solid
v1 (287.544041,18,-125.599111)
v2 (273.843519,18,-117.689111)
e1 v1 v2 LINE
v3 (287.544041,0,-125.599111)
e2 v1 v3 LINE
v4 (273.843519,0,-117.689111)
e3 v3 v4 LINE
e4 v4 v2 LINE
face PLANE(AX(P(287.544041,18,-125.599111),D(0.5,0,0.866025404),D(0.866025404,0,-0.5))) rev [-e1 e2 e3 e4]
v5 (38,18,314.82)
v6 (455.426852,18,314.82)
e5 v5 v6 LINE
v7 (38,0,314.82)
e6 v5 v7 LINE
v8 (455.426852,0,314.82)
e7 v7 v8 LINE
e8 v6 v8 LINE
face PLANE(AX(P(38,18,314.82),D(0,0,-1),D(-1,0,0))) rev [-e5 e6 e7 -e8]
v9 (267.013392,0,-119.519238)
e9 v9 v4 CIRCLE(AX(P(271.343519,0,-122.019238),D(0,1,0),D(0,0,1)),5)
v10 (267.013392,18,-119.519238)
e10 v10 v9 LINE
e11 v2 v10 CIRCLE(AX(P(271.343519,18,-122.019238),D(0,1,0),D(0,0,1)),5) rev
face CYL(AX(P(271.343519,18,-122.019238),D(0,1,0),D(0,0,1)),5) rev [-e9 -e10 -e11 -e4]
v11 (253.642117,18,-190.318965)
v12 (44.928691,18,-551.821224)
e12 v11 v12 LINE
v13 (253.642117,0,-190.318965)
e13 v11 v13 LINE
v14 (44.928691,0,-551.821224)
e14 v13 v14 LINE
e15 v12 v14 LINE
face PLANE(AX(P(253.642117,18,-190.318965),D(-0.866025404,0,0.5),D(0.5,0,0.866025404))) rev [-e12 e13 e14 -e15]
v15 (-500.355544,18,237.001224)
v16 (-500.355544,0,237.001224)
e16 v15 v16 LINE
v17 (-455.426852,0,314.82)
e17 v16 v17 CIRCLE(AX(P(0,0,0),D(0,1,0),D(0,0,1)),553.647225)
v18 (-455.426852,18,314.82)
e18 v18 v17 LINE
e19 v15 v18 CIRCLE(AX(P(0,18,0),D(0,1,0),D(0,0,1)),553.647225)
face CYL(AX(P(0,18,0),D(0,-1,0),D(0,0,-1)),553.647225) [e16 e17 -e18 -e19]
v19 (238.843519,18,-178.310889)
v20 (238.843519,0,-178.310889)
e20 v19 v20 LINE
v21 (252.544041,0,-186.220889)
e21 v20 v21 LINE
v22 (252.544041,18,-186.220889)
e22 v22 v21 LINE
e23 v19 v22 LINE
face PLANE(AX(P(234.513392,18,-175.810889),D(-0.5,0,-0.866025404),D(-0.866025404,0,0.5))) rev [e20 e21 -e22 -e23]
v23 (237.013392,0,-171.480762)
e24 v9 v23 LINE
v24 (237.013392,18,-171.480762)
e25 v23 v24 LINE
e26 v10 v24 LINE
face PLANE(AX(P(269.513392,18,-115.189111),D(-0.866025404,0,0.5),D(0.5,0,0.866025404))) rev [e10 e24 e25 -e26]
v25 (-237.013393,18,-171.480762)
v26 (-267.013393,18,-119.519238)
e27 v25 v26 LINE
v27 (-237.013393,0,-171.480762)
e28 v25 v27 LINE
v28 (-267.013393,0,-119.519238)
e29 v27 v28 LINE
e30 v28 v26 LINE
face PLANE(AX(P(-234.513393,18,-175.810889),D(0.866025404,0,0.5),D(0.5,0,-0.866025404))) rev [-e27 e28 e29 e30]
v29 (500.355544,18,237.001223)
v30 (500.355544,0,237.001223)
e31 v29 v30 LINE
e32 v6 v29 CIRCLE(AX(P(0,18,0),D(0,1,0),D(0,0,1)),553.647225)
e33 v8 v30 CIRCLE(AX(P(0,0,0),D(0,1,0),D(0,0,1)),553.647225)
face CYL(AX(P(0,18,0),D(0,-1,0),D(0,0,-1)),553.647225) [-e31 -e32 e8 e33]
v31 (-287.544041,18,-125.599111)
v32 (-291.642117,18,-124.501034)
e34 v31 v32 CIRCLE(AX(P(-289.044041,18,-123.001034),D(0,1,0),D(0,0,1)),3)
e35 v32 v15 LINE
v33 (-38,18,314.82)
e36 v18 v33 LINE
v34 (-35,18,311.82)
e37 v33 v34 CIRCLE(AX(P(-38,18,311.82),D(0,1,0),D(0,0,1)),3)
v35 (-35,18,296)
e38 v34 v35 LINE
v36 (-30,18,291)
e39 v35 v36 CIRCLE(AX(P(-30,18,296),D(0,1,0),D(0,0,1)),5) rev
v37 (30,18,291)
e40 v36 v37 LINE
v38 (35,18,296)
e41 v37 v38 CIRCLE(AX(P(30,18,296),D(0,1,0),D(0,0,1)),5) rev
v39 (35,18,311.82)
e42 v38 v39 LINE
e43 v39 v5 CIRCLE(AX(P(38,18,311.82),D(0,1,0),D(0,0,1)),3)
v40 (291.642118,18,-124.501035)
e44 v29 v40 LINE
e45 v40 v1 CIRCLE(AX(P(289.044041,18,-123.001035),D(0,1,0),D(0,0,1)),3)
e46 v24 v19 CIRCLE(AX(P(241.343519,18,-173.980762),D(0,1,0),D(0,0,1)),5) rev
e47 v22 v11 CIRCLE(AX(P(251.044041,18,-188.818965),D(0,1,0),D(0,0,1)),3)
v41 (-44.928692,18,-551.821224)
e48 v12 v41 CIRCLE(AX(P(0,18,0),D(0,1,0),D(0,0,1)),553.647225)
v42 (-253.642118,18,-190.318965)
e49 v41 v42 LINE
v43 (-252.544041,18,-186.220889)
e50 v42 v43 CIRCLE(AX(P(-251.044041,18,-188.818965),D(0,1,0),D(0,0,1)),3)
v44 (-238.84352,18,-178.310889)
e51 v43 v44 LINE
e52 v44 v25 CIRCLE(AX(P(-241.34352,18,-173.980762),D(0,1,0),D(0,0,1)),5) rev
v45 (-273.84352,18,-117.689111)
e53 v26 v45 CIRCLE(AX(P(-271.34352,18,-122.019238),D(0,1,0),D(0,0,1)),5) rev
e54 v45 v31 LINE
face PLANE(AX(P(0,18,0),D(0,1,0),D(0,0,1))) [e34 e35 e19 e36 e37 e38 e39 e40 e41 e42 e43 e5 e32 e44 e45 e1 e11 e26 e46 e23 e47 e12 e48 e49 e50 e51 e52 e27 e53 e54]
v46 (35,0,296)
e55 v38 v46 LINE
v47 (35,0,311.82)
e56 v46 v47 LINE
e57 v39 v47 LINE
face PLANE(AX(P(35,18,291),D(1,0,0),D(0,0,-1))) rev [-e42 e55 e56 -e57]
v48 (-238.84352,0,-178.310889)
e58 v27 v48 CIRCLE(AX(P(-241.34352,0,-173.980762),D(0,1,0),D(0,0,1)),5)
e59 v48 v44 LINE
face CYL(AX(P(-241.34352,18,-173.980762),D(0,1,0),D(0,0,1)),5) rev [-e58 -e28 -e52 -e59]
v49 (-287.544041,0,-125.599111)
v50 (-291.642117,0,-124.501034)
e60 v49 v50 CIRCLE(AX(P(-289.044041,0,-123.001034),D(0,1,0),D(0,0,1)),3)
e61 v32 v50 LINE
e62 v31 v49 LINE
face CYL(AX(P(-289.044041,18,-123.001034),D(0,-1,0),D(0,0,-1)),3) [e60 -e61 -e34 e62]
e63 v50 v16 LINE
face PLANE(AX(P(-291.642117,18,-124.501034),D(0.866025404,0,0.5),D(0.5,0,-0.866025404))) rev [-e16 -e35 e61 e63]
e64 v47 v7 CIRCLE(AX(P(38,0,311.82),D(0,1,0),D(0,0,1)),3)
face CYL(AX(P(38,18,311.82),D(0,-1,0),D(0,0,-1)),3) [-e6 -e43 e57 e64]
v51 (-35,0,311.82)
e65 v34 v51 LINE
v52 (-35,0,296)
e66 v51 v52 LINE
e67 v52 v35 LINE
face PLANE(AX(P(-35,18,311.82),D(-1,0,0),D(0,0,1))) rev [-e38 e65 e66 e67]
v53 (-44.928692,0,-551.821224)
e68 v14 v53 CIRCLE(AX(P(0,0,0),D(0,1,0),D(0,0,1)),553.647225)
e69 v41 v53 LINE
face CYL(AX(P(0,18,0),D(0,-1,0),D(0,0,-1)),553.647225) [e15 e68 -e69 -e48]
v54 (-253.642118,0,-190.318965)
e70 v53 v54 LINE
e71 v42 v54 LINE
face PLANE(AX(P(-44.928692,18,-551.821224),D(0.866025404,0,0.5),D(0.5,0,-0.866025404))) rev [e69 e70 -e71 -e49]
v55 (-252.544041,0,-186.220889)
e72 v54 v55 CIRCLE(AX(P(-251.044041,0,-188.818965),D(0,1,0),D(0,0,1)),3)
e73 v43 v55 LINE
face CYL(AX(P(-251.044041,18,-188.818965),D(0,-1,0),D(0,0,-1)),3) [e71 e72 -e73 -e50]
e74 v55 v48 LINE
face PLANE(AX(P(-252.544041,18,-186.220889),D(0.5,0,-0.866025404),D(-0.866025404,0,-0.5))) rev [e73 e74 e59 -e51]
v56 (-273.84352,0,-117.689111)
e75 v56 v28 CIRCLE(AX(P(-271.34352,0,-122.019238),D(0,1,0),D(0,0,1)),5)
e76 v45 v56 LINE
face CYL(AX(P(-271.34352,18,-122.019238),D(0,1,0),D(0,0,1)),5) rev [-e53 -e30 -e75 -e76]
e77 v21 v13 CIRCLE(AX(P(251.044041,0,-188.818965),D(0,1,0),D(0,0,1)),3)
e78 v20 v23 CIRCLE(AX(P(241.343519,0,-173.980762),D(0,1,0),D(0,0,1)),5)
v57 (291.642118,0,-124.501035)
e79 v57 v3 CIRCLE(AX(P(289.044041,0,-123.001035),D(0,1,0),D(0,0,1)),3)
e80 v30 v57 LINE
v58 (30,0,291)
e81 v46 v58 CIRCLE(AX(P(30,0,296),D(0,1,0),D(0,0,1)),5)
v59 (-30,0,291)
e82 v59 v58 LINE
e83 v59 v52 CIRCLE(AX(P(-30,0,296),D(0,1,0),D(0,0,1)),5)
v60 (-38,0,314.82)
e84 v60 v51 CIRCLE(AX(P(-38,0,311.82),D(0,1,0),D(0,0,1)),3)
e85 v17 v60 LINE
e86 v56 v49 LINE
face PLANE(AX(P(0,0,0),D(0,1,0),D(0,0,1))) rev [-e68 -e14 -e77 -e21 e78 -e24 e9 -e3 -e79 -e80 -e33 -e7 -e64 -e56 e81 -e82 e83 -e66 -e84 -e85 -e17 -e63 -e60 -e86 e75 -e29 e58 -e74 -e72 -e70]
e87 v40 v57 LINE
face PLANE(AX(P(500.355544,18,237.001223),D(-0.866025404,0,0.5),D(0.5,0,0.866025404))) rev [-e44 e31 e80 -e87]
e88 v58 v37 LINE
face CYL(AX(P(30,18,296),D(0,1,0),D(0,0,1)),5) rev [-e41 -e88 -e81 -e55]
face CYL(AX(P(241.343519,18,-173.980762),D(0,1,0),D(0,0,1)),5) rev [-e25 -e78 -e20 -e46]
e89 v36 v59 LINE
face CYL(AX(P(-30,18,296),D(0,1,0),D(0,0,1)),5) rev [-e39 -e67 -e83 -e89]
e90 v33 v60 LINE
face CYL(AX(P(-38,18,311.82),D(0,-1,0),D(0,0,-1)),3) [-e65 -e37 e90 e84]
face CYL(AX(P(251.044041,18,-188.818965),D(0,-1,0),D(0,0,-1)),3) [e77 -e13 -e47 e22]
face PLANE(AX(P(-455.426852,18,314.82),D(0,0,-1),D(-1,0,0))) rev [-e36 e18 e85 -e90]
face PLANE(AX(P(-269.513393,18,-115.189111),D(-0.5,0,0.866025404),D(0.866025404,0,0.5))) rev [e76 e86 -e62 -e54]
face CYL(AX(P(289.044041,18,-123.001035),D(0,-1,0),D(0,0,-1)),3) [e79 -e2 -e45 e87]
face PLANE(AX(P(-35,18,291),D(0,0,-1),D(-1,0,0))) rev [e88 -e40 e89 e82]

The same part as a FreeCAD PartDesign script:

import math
import FreeCAD as App
import Part
import Sketcher
Q = App.Units.Quantity


def edges_at(feature, points):
    """Names of the edges that pass closest to the given points."""
    edges = feature.Shape.Edges
    near = lambda p: min(range(len(edges)), key=lambda i: edges[i].distToShape(Part.Vertex(*p))[0])
    return sorted({f"Edge{near(p) + 1}" for p in points})

doc = App.newDocument("Part")
params = doc.addObject("Spreadsheet::Sheet", "Params")
for row, (alias, value) in enumerate([
    ("sketch1_radius", "3 mm"),
    ("sketch1_width", "70 mm"),
    ("sketch1_length", "70 mm"),
    ("sketch1_height", "20.82 mm"),
    ("sketch1_length2", "20.82 mm"),
    ("pad1_length", "18 mm"),
    ("fillet_radius", "5 mm"),
], start=1):
    params.set(f"A{row}", alias)
    params.set(f"B{row}", "=" + value)
    params.setAlias(f"B{row}", alias)

body = doc.addObject("PartDesign::Body", "Body")

# Sketch on XZ plane
sketch1 = body.newObject("Sketcher::SketchObject", "Sketch")
sketch1.AttachmentSupport = (doc.getObject("XZ_Plane"), [""])
sketch1.MapMode = "FlatFace"
sketch1.addGeometry([
    Part.LineSegment(App.Vector(-455.426852, 314.82, 0), App.Vector(-38, 314.82, 0)),  # 0
    Part.ArcOfCircle(Part.Circle(App.Vector(-38, 311.82, 0), App.Vector(0, 0, 1), 3), math.radians(0), math.radians(90)),  # 1
    Part.LineSegment(App.Vector(-35, 311.82, 0), App.Vector(-35, 291, 0)),  # 2
    Part.LineSegment(App.Vector(-35, 291, 0), App.Vector(35, 291, 0)),  # 3
    Part.LineSegment(App.Vector(35, 291, 0), App.Vector(35, 311.82, 0)),  # 4
    Part.ArcOfCircle(Part.Circle(App.Vector(38, 311.82, 0), App.Vector(0, 0, 1), 3), math.radians(90), math.radians(180)),  # 5
    Part.LineSegment(App.Vector(38, 314.82, 0), App.Vector(455.426852, 314.82, 0)),  # 6
    Part.ArcOfCircle(Part.Circle(App.Vector(0, 0, 0), App.Vector(0, 0, 1), 553.647225), math.radians(25.345306), math.radians(34.654694)),  # 7
    Part.LineSegment(App.Vector(500.355544, 237.001223, 0), App.Vector(291.642118, -124.501035, 0)),  # 8
    Part.ArcOfCircle(Part.Circle(App.Vector(289.044041, -123.001035, 0), App.Vector(0, 0, 1), 3), math.radians(-120), math.radians(-30)),  # 9
    Part.LineSegment(App.Vector(287.544041, -125.599111, 0), App.Vector(269.513392, -115.189111, 0)),  # 10
    Part.LineSegment(App.Vector(269.513392, -115.189111, 0), App.Vector(234.513392, -175.810889, 0)),  # 11
    Part.LineSegment(App.Vector(234.513392, -175.810889, 0), App.Vector(252.544041, -186.220889, 0)),  # 12
    Part.ArcOfCircle(Part.Circle(App.Vector(251.044041, -188.818965, 0), App.Vector(0, 0, 1), 3), math.radians(-30), math.radians(60)),  # 13
    Part.LineSegment(App.Vector(253.642117, -190.318965, 0), App.Vector(44.928691, -551.821224, 0)),  # 14
    Part.ArcOfCircle(Part.Circle(App.Vector(0, 0, 0), App.Vector(0, 0, 1), 553.647225), math.radians(-94.654694), math.radians(-85.345306)),  # 15
    Part.LineSegment(App.Vector(-44.928692, -551.821224, 0), App.Vector(-253.642118, -190.318965, 0)),  # 16
    Part.ArcOfCircle(Part.Circle(App.Vector(-251.044041, -188.818965, 0), App.Vector(0, 0, 1), 3), math.radians(120), math.radians(210)),  # 17
    Part.LineSegment(App.Vector(-252.544041, -186.220889, 0), App.Vector(-234.513393, -175.810889, 0)),  # 18
    Part.LineSegment(App.Vector(-234.513393, -175.810889, 0), App.Vector(-269.513393, -115.189111, 0)),  # 19
    Part.LineSegment(App.Vector(-269.513393, -115.189111, 0), App.Vector(-287.544041, -125.599111, 0)),  # 20
    Part.ArcOfCircle(Part.Circle(App.Vector(-289.044041, -123.001034, 0), App.Vector(0, 0, 1), 3), math.radians(-150), math.radians(-60)),  # 21
    Part.LineSegment(App.Vector(-291.642117, -124.501034, 0), App.Vector(-500.355544, 237.001224, 0)),  # 22
    Part.ArcOfCircle(Part.Circle(App.Vector(0, 0, 0), App.Vector(0, 0, 1), 553.647225), math.radians(145.345306), math.radians(154.654694)),  # 23
], False)
sketch1.addConstraint([
    Sketcher.Constraint("Tangent", 0, 2, 1, 2),
    Sketcher.Constraint("Tangent", 1, 1, 2, 1),
    Sketcher.Constraint("Coincident", 2, 2, 3, 1),
    Sketcher.Constraint("Coincident", 3, 2, 4, 1),
    Sketcher.Constraint("Tangent", 4, 2, 5, 2),
    Sketcher.Constraint("Tangent", 5, 1, 6, 1),
    Sketcher.Constraint("Coincident", 6, 2, 7, 2),
    Sketcher.Constraint("Coincident", 7, 1, 8, 1),
    Sketcher.Constraint("Tangent", 8, 2, 9, 2),
    Sketcher.Constraint("Tangent", 9, 1, 10, 1),
    Sketcher.Constraint("Coincident", 10, 2, 11, 1),
    Sketcher.Constraint("Coincident", 11, 2, 12, 1),
    Sketcher.Constraint("Tangent", 12, 2, 13, 2),
    Sketcher.Constraint("Tangent", 13, 1, 14, 1),
    Sketcher.Constraint("Coincident", 14, 2, 15, 2),
    Sketcher.Constraint("Coincident", 15, 1, 16, 1),
    Sketcher.Constraint("Tangent", 16, 2, 17, 2),
    Sketcher.Constraint("Tangent", 17, 1, 18, 1),
    Sketcher.Constraint("Coincident", 18, 2, 19, 1),
    Sketcher.Constraint("Coincident", 19, 2, 20, 1),
    Sketcher.Constraint("Tangent", 20, 2, 21, 2),
    Sketcher.Constraint("Tangent", 21, 1, 22, 1),
    Sketcher.Constraint("Coincident", 22, 2, 23, 2),
    Sketcher.Constraint("Coincident", 23, 1, 0, 1),
    Sketcher.Constraint("Horizontal", 0),
    Sketcher.Constraint("Vertical", 2),
    Sketcher.Constraint("Horizontal", 3),
    Sketcher.Constraint("Vertical", 4),
    Sketcher.Constraint("Horizontal", 6),
    Sketcher.Constraint("Coincident", 7, 3, -1, 1),
    Sketcher.Constraint("Coincident", 15, 3, -1, 1),
    Sketcher.Constraint("Coincident", 23, 3, -1, 1),
    Sketcher.Constraint("Equal", 1, 5),
    Sketcher.Constraint("Equal", 5, 9),
    Sketcher.Constraint("Equal", 9, 13),
    Sketcher.Constraint("Equal", 7, 15),
    Sketcher.Constraint("Equal", 13, 17),
    Sketcher.Constraint("Equal", 17, 21),
    Sketcher.Constraint("Equal", 15, 23),
    Sketcher.Constraint("Symmetric", 1, 3, 5, 3, -2),
    Sketcher.Constraint("Symmetric", 13, 3, 17, 3, -2),
    Sketcher.Constraint("Symmetric", 9, 3, 21, 3, -2),
    Sketcher.Constraint("Symmetric", 11, 2, 18, 2, -2),
    Sketcher.Constraint("Symmetric", 10, 2, 19, 2, -2),
    Sketcher.Constraint("Perpendicular", 8, 10),
    Sketcher.Constraint("Perpendicular", 10, 11),
    Sketcher.Constraint("Perpendicular", 11, 12),
    Sketcher.Constraint("Perpendicular", 12, 14),
    Sketcher.Constraint("Perpendicular", 16, 18),
    Sketcher.Constraint("Perpendicular", 20, 22),
    Sketcher.Constraint("Equal", 10, 12),
    Sketcher.Constraint("Equal", 8, 14),
    Sketcher.Constraint("Radius", 1, Q("3 mm")),
    Sketcher.Constraint("DistanceX", 3, 1, 3, 2, Q("70 mm")),
    Sketcher.Constraint("Angle", 8, Q("-120 deg")),
    Sketcher.Constraint("Distance", 11, Q("70 mm")),
    Sketcher.Constraint("DistanceY", -1, 1, 2, 2, Q("291 mm")),
    Sketcher.Constraint("DistanceY", 2, 2, 2, 1, Q("20.82 mm")),
    Sketcher.Constraint("Distance", 10, Q("20.82 mm")),
    Sketcher.Constraint("Radius", 7, Q("553.647225 mm")),
    Sketcher.Constraint("DistanceX", 14, 2, 11, 2, Q("189.584701 mm")),
])
sketch1.setExpression("Constraints[52]", "Params.sketch1_radius")
sketch1.setExpression("Constraints[53]", "Params.sketch1_width")
sketch1.setExpression("Constraints[55]", "Params.sketch1_length")
sketch1.setExpression("Constraints[57]", "Params.sketch1_height")
sketch1.setExpression("Constraints[58]", "Params.sketch1_length2")
pad1 = body.newObject("PartDesign::Pad", "Pad")
pad1.Profile = sketch1
pad1.setExpression("Length", "Params.pad1_length")
pad1.Reversed = True
doc.recompute()

fillet = body.newObject("PartDesign::Fillet", "Fillet")
fillet.Base = (pad1, edges_at(pad1, [
    (-269.513, 9, -115.189),
    (-234.513, 9, -175.811),
    (234.513, 9, -175.811),
    (269.513, 9, -115.189),
    (35, 9, 291),
    (-35, 9, 291),
]))
fillet.setExpression("Radius", "Params.fillet_radius")

doc.recompute()
